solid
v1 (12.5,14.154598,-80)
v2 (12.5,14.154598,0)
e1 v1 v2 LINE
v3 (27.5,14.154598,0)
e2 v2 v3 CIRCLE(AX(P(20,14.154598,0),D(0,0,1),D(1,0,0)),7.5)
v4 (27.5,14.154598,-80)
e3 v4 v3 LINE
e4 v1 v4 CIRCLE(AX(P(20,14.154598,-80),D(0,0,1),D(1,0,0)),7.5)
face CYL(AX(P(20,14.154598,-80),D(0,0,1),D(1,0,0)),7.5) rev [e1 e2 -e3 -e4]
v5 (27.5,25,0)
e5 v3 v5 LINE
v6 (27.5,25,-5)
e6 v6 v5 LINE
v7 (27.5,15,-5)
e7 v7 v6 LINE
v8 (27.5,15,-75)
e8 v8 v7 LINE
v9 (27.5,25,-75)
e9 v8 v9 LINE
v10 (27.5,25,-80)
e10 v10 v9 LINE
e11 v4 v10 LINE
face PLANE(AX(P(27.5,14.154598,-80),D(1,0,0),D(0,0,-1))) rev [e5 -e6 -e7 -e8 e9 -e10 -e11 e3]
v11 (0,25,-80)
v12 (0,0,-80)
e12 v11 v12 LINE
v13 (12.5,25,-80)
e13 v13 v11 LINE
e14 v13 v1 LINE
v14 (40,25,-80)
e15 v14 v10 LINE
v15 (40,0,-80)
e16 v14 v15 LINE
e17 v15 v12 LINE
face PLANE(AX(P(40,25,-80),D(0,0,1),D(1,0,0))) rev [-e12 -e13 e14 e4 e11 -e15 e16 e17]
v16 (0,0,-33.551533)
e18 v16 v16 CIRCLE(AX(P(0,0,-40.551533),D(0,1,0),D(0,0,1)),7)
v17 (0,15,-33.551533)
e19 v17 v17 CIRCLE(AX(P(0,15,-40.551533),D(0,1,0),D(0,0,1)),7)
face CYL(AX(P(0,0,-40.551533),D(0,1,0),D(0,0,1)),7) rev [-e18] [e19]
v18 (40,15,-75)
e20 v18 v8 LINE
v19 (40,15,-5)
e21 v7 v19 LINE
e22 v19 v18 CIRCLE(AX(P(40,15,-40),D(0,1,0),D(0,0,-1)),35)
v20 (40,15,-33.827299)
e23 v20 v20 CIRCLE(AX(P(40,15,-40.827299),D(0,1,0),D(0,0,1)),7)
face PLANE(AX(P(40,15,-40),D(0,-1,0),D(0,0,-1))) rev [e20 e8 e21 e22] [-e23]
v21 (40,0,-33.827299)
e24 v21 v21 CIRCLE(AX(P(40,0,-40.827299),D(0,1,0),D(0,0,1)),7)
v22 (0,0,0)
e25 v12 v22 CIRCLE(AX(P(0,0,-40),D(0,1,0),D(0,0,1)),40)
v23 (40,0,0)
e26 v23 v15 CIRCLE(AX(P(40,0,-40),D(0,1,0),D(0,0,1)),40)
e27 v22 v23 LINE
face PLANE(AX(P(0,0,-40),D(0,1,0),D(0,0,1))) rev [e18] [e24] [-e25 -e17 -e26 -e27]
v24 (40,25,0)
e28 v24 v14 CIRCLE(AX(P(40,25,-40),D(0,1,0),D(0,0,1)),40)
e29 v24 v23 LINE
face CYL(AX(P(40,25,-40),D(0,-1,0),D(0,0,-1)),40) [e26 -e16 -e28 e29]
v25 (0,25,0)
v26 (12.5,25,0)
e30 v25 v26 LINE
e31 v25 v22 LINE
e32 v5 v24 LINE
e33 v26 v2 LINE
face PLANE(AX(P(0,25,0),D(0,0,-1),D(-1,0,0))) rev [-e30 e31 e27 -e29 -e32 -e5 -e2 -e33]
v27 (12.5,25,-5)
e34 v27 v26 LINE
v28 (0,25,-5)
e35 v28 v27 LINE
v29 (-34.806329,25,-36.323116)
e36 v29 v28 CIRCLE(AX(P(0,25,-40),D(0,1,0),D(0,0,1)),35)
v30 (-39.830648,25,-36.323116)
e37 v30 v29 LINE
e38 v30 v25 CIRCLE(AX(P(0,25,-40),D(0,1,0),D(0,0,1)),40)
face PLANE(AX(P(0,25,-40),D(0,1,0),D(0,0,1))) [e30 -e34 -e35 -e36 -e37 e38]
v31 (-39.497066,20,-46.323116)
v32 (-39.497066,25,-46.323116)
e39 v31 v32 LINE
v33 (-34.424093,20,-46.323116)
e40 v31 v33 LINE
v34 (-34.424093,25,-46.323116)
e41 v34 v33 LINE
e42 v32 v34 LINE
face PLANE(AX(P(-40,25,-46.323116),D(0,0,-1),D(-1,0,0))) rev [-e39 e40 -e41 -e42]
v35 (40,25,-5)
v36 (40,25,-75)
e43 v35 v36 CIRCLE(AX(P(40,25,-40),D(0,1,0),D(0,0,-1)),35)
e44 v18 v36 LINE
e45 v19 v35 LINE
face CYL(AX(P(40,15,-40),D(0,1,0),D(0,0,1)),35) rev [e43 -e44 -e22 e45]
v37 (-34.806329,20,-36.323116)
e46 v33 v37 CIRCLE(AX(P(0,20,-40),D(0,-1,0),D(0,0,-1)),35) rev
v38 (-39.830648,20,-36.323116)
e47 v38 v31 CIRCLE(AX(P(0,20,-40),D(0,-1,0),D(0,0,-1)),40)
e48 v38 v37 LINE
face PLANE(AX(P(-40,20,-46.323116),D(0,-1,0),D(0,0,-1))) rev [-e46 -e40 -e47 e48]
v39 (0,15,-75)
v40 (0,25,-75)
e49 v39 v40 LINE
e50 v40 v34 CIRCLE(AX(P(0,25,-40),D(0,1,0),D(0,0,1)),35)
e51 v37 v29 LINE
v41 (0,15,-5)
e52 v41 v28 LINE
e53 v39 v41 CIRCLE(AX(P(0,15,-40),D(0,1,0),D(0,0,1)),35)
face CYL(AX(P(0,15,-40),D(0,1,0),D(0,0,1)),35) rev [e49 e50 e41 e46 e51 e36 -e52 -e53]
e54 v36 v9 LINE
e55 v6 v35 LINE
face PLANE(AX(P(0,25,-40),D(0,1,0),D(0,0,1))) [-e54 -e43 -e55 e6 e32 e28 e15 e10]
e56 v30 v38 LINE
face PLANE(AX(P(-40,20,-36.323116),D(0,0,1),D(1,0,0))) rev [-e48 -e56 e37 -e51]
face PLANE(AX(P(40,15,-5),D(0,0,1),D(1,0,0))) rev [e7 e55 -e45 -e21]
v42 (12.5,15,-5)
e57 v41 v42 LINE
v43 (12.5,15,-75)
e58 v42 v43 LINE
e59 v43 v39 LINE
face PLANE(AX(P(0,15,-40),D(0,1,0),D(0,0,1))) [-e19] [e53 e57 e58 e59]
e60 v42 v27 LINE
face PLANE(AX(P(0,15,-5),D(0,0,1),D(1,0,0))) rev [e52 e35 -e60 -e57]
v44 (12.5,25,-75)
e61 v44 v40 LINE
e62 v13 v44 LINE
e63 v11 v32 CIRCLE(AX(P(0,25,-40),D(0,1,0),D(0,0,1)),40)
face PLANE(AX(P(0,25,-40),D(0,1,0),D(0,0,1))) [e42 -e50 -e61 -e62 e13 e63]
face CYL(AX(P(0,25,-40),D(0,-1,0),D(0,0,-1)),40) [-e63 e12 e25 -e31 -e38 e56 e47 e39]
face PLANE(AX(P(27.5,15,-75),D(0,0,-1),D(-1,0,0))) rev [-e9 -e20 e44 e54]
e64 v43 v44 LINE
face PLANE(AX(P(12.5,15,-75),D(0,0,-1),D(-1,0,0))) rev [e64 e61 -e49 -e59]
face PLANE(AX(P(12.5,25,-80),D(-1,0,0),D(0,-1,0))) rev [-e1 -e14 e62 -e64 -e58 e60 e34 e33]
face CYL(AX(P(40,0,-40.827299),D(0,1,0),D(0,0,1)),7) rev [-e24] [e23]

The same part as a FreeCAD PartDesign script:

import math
import FreeCAD as App
import Part
import Sketcher


def add_polygon(sketch, points):
    """Adds a closed chain of lines whose ends are joined by coincident constraints."""
    first, n = sketch.GeometryCount, len(points)
    for a, b in zip(points, points[1:] + points[:1]):
        sketch.addGeometry(Part.LineSegment(App.Vector(*a, 0), App.Vector(*b, 0)), False)
    for i in range(n):
        sketch.addConstraint(Sketcher.Constraint("Coincident", first + i, 2, first + (i + 1) % n, 1))

doc = App.newDocument("Part")
body = doc.addObject("PartDesign::Body", "Body")

sketch1 = body.newObject("Sketcher::SketchObject", "Sketch")
sketch1.AttachmentSupport = (doc.getObject("XZ_Plane"), [""])
sketch1.MapMode = "FlatFace"
sketch1.addGeometry(Part.LineSegment(App.Vector(0, 0, 0), App.Vector(40, 0, 0)), False)
sketch1.addGeometry(Part.ArcOfCircle(Part.Circle(App.Vector(40, -40, 0), App.Vector(0, 0, 1), 40), math.radians(-90), math.radians(90)), False)
sketch1.addGeometry(Part.LineSegment(App.Vector(40, -80, 0), App.Vector(0, -80, 0)), False)
sketch1.addGeometry(Part.ArcOfCircle(Part.Circle(App.Vector(0, -40, 0), App.Vector(0, 0, 1), 40), math.radians(90), math.radians(270)), False)
sketch1.addConstraint(Sketcher.Constraint("Tangent", 0, 2, 1, 2))
sketch1.addConstraint(Sketcher.Constraint("Tangent", 1, 1, 2, 1))
sketch1.addConstraint(Sketcher.Constraint("Tangent", 2, 2, 3, 2))
sketch1.addConstraint(Sketcher.Constraint("Tangent", 3, 1, 0, 1))
sketch1.addConstraint(Sketcher.Constraint("Horizontal", 0))
sketch1.addConstraint(Sketcher.Constraint("Horizontal", 2))
sketch1.addConstraint(Sketcher.Constraint("Coincident", 3, 1, -1, 1))
sketch1.addConstraint(Sketcher.Constraint("Radius", 1, 40.0))
sketch1.addConstraint(Sketcher.Constraint("DistanceX", 0, 1, 0, 2, 40.0))
pad1 = body.newObject("PartDesign::Pad", "Pad")
pad1.Profile = sketch1
pad1.Length = 25
pad1.Reversed = True

sketch2 = body.newObject("Sketcher::SketchObject", "Sketch001")
sketch2.AttachmentSupport = (doc.getObject("XY_Plane"), [""])
sketch2.MapMode = "FlatFace"
sketch2.addGeometry(Part.LineSegment(App.Vector(12, 25, 0), App.Vector(12, 14, 0)), False)
sketch2.addGeometry(Part.ArcOfCircle(Part.Circle(App.Vector(20, 14, 0), App.Vector(0, 0, 1), 8), math.radians(180), math.radians(360)), False)
sketch2.addGeometry(Part.LineSegment(App.Vector(28, 14, 0), App.Vector(28, 25, 0)), False)
sketch2.addGeometry(Part.LineSegment(App.Vector(28, 25, 0), App.Vector(12, 25, 0)), False)
sketch2.addConstraint(Sketcher.Constraint("Tangent", 0, 2, 1, 1))
sketch2.addConstraint(Sketcher.Constraint("Tangent", 1, 2, 2, 1))
sketch2.addConstraint(Sketcher.Constraint("Coincident", 2, 2, 3, 1))
sketch2.addConstraint(Sketcher.Constraint("Coincident", 3, 2, 0, 1))
sketch2.addConstraint(Sketcher.Constraint("Vertical", 0))
sketch2.addConstraint(Sketcher.Constraint("Vertical", 2))
sketch2.addConstraint(Sketcher.Constraint("Horizontal", 3))
sketch2.addConstraint(Sketcher.Constraint("Radius", 1, 7.5))
sketch2.addConstraint(Sketcher.Constraint("DistanceX", -1, 1, 1, 3, 20.0))
sketch2.addConstraint(Sketcher.Constraint("DistanceY", -1, 1, 2, 2, 25.0))
sketch2.addConstraint(Sketcher.Constraint("DistanceY", 0, 2, 0, 1, 10.845402))
pocket1 = body.newObject("PartDesign::Pocket", "Pocket")
pocket1.Profile = sketch2
pocket1.Type = "ThroughAll"

sketch3 = body.newObject("Sketcher::SketchObject", "Sketch002")
sketch3.AttachmentSupport = (doc.getObject("XZ_Plane"), [""])
sketch3.MapMode = "FlatFace"
sketch3.AttachmentOffset = App.Placement(App.Vector(0, 0, -25), App.Rotation())
sketch3.addGeometry(Part.LineSegment(App.Vector(12, -75, 0), App.Vector(0, -75, 0)), False)
sketch3.addGeometry(Part.ArcOfCircle(Part.Circle(App.Vector(0, -40, 0), App.Vector(0, 0, 1), 35), math.radians(90), math.radians(270)), False)
sketch3.addGeometry(Part.LineSegment(App.Vector(0, -5, 0), App.Vector(12, -5, 0)), False)
sketch3.addGeometry(Part.LineSegment(App.Vector(12, -5, 0), App.Vector(12, -75, 0)), False)
sketch3.addConstraint(Sketcher.Constraint("Tangent", 0, 2, 1, 2))
sketch3.addConstraint(Sketcher.Constraint("Tangent", 1, 1, 2, 1))
sketch3.addConstraint(Sketcher.Constraint("Coincident", 2, 2, 3, 1))
sketch3.addConstraint(Sketcher.Constraint("Coincident", 3, 2, 0, 1))
sketch3.addConstraint(Sketcher.Constraint("Horizontal", 0))
sketch3.addConstraint(Sketcher.Constraint("Horizontal", 2))
sketch3.addConstraint(Sketcher.Constraint("Vertical", 3))
sketch3.addConstraint(Sketcher.Constraint("PointOnObject", 1, 3, -2))
sketch3.addConstraint(Sketcher.Constraint("Radius", 1, 35.0))
sketch3.addConstraint(Sketcher.Constraint("DistanceX", 0, 2, 0, 1, 12.5))
sketch3.addConstraint(Sketcher.Constraint("DistanceY", 1, 3, -1, 1, 40.0))
pocket2 = body.newObject("PartDesign::Pocket", "Pocket001")
pocket2.Profile = sketch3
pocket2.Length = 10
pocket2.Reversed = True

sketch4 = body.newObject("Sketcher::SketchObject", "Sketch003")
sketch4.AttachmentSupport = (doc.getObject("XZ_Plane"), [""])
sketch4.MapMode = "FlatFace"
sketch4.AttachmentOffset = App.Placement(App.Vector(0, 0, -25), App.Rotation())
sketch4.addGeometry(Part.LineSegment(App.Vector(40, -75, 0), App.Vector(28, -75, 0)), False)
sketch4.addGeometry(Part.LineSegment(App.Vector(28, -75, 0), App.Vector(28, -5, 0)), False)
sketch4.addGeometry(Part.LineSegment(App.Vector(28, -5, 0), App.Vector(40, -5, 0)), False)
sketch4.addGeometry(Part.ArcOfCircle(Part.Circle(App.Vector(40, -40, 0), App.Vector(0, 0, 1), 35), math.radians(-90), math.radians(90)), False)
sketch4.addConstraint(Sketcher.Constraint("Coincident", 0, 2, 1, 1))
sketch4.addConstraint(Sketcher.Constraint("Coincident", 1, 2, 2, 1))
sketch4.addConstraint(Sketcher.Constraint("Tangent", 2, 2, 3, 2))
sketch4.addConstraint(Sketcher.Constraint("Tangent", 3, 1, 0, 1))
sketch4.addConstraint(Sketcher.Constraint("Horizontal", 0))
sketch4.addConstraint(Sketcher.Constraint("Vertical", 1))
sketch4.addConstraint(Sketcher.Constraint("Horizontal", 2))
sketch4.addConstraint(Sketcher.Constraint("Radius", 3, 35.0))
sketch4.addConstraint(Sketcher.Constraint("DistanceX", 0, 2, 0, 1, 12.5))
sketch4.addConstraint(Sketcher.Constraint("DistanceX", -1, 1, 3, 3, 40.0))
sketch4.addConstraint(Sketcher.Constraint("DistanceY", 3, 3, -1, 1, 40.0))
pocket3 = body.newObject("PartDesign::Pocket", "Pocket002")
pocket3.Profile = sketch4
pocket3.Length = 10
pocket3.Reversed = True

sketch5 = body.newObject("Sketcher::SketchObject", "Sketch004")
sketch5.AttachmentSupport = (doc.getObject("YZ_Plane"), [""])
sketch5.MapMode = "FlatFace"
sketch5.AttachmentOffset = App.Placement(App.Vector(0, 0, 12.5), App.Rotation())
add_polygon(sketch5, [(25, -36), (20, -36), (20, -46), (25, -46)])
sketch5.addConstraint(Sketcher.Constraint("Horizontal", 0))
sketch5.addConstraint(Sketcher.Constraint("Vertical", 1))
sketch5.addConstraint(Sketcher.Constraint("Horizontal", 2))
sketch5.addConstraint(Sketcher.Constraint("Vertical", 3))
sketch5.addConstraint(Sketcher.Constraint("DistanceX", 0, 2, 0, 1, 5.0))
sketch5.addConstraint(Sketcher.Constraint("DistanceY", 1, 2, 1, 1, 10.0))
sketch5.addConstraint(Sketcher.Constraint("DistanceX", -1, 1, 0, 2, 20.0))
sketch5.addConstraint(Sketcher.Constraint("DistanceY", 0, 2, -1, 1, 36.323116))
pocket4 = body.newObject("PartDesign::Pocket", "Pocket003")
pocket4.Profile = sketch5
pocket4.Type = "ThroughAll"

sketch6 = body.newObject("Sketcher::SketchObject", "Sketch005")
sketch6.AttachmentSupport = (doc.getObject("XZ_Plane"), [""])
sketch6.MapMode = "FlatFace"
sketch6.AttachmentOffset = App.Placement(App.Vector(0, 0, -15), App.Rotation())
sketch6.addGeometry(Part.Circle(App.Vector(0, -41, 0), App.Vector(0, 0, 1), 7), False)
sketch6.addConstraint(Sketcher.Constraint("PointOnObject", 0, 3, -2))
sketch6.addConstraint(Sketcher.Constraint("Diameter", 0, 14.0))
sketch6.addConstraint(Sketcher.Constraint("DistanceY", 0, 3, -1, 1, 40.551533))
pocket5 = body.newObject("PartDesign::Pocket", "Pocket004")
pocket5.Profile = sketch6
pocket5.Type = "ThroughAll"
pocket5.Reversed = True

sketch7 = body.newObject("Sketcher::SketchObject", "Sketch006")
sketch7.AttachmentSupport = (doc.getObject("XZ_Plane"), [""])
sketch7.MapMode = "FlatFace"
sketch7.AttachmentOffset = App.Placement(App.Vector(0, 0, -15), App.Rotation())
sketch7.addGeometry(Part.Circle(App.Vector(40, -41, 0), App.Vector(0, 0, 1), 7), False)
sketch7.addConstraint(Sketcher.Constraint("Diameter", 0, 14.0))
sketch7.addConstraint(Sketcher.Constraint("DistanceX", -1, 1, 0, 3, 40.0))
sketch7.addConstraint(Sketcher.Constraint("DistanceY", 0, 3, -1, 1, 40.827299))
pocket6 = body.newObject("PartDesign::Pocket", "Pocket005")
pocket6.Profile = sketch7
pocket6.Type = "ThroughAll"
pocket6.Reversed = True

doc.recompute()
